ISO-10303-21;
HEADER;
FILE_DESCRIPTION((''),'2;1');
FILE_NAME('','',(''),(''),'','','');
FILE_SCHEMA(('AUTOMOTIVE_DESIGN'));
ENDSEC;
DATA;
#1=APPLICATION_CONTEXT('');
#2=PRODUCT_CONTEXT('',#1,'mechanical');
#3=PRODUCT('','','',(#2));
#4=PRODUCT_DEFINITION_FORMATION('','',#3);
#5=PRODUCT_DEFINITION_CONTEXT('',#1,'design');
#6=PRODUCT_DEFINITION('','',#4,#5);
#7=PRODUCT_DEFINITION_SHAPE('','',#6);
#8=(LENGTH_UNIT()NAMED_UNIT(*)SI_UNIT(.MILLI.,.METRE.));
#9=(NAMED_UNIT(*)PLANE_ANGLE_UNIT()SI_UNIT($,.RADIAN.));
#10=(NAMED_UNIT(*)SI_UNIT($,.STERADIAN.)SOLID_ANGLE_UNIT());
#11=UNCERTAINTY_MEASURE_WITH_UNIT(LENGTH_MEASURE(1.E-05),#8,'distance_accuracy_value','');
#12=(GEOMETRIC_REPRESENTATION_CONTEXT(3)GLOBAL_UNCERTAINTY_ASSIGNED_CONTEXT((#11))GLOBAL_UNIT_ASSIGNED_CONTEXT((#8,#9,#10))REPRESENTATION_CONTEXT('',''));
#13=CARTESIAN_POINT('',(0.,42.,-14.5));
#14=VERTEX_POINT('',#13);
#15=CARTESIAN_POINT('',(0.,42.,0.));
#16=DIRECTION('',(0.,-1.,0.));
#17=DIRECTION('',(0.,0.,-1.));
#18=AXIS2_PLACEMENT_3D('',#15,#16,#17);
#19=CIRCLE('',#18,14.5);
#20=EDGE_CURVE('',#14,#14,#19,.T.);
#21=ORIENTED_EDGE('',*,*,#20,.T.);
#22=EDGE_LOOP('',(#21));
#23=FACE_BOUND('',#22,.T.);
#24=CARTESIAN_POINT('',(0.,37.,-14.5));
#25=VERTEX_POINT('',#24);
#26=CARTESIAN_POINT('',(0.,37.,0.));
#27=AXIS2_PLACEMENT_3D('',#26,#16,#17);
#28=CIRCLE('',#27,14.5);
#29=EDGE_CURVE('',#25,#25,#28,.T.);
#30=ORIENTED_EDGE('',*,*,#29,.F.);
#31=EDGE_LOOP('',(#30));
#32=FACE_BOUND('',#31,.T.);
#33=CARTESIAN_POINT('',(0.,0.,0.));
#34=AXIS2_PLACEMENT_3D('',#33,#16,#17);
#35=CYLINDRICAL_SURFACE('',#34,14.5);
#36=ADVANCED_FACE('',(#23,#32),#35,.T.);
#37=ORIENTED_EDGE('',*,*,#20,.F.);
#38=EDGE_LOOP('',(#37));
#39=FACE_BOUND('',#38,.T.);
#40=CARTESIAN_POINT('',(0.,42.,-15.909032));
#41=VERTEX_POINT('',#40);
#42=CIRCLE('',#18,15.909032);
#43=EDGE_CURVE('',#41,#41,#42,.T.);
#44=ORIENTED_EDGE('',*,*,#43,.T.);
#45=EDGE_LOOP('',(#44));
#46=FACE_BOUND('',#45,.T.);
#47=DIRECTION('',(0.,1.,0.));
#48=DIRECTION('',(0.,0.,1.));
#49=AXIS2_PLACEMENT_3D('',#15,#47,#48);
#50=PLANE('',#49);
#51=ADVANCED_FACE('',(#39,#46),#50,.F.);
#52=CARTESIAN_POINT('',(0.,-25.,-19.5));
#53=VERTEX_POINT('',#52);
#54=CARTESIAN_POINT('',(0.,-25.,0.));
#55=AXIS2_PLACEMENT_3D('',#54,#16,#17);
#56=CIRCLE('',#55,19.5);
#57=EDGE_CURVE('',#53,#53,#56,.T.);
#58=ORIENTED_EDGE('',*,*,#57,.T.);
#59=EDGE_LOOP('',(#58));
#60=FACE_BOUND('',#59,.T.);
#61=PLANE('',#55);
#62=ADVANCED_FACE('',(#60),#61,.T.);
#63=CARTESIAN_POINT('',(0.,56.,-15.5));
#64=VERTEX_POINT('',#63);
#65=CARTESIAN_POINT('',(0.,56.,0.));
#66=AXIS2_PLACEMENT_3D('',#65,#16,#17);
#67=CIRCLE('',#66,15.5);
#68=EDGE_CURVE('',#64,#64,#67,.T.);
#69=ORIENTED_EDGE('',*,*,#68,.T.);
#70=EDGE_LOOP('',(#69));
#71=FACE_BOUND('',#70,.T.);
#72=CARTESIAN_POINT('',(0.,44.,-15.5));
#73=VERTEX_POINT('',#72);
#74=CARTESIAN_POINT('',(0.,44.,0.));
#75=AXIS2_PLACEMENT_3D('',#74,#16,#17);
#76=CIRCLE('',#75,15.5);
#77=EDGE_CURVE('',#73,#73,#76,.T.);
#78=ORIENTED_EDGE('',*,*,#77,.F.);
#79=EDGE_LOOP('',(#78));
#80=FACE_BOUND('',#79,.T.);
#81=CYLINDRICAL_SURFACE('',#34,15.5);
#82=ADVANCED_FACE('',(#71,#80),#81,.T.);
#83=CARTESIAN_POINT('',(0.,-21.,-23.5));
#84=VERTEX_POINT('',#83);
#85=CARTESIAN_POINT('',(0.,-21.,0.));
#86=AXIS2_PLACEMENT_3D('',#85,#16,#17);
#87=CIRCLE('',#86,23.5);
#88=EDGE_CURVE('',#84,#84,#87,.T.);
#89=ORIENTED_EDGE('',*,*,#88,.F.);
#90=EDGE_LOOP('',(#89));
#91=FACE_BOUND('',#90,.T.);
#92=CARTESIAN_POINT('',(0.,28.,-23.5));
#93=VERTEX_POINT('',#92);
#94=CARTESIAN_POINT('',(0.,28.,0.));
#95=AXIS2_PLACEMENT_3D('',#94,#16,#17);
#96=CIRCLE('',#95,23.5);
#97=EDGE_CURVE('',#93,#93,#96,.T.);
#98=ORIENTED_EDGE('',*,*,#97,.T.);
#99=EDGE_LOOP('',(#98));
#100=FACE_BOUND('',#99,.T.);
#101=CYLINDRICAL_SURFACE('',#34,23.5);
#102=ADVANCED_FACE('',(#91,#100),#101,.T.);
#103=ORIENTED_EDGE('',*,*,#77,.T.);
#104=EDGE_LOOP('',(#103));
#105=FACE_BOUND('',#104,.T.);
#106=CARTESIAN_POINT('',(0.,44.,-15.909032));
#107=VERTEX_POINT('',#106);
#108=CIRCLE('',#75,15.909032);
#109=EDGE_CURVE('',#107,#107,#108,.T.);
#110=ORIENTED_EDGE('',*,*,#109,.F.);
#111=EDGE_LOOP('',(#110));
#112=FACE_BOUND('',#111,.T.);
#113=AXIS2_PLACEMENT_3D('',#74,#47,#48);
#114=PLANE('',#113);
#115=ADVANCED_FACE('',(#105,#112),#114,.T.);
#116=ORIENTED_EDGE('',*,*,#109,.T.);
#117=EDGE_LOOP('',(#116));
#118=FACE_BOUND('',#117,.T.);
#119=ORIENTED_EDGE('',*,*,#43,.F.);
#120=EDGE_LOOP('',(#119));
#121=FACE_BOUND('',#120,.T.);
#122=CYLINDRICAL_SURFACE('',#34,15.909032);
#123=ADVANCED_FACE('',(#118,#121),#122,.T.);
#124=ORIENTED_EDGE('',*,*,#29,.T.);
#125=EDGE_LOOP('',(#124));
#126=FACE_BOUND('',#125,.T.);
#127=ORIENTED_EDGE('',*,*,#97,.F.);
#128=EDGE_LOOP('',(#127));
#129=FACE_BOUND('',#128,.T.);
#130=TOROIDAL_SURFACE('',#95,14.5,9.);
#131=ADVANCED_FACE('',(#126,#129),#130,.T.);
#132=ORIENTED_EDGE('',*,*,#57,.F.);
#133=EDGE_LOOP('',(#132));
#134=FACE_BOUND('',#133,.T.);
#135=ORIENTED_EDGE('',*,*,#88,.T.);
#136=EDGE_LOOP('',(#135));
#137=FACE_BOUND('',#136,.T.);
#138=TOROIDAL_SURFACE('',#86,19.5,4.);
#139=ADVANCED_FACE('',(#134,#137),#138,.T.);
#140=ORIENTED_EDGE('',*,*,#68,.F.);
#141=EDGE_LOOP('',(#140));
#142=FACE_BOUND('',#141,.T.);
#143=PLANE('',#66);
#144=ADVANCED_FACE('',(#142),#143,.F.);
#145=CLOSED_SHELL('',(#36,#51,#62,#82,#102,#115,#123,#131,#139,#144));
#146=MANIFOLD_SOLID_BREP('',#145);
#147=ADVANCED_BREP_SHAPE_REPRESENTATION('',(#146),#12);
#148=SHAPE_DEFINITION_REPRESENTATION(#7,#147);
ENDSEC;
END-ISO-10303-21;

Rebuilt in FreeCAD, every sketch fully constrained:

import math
import FreeCAD as App
import Part
import Sketcher
from FreeCAD import Vector
Q = App.Units.Quantity

doc = App.newDocument("Part")
params = doc.addObject("Spreadsheet::Sheet", "Params")
for row, (alias, value) in enumerate([
    ("sketch1_radius", "4 mm"),
    ("sketch1_radius2", "9 mm"),
    ("sketch1_height", "81 mm"),
    ("sketch1_height2", "49 mm"),
    ("sketch1_height3", "5 mm"),
    ("revolution_angle", "360 deg"),
], start=1):
    params.set(f"A{row}", alias)
    params.set(f"B{row}", "=" + value)
    params.setAlias(f"B{row}", alias)

body = doc.addObject("PartDesign::Body", "Body")

sketch1 = body.newObject("Sketcher::SketchObject", "Sketch")
sketch1.AttachmentSupport = (doc.getObject("XY_Plane"), [""])
sketch1.MapMode = "FlatFace"
sketch1.addGeometry(Part.LineSegment(Vector(0, 56, 0), Vector(0, -25, 0)), False)
sketch1.addGeometry(Part.LineSegment(Vector(0, -25, 0), Vector(19.5, -25, 0)), False)
sketch1.addGeometry(Part.ArcOfCircle(Part.Circle(Vector(19.5, -21, 0), Vector(0, 0, 1), 4), math.radians(-90), math.radians(0)), False)
sketch1.addGeometry(Part.LineSegment(Vector(23.5, -21, 0), Vector(23.5, 28, 0)), False)
sketch1.addGeometry(Part.ArcOfCircle(Part.Circle(Vector(14.5, 28, 0), Vector(0, 0, 1), 9), math.radians(0), math.radians(90)), False)
sketch1.addGeometry(Part.LineSegment(Vector(14.5, 37, 0), Vector(14.5, 42, 0)), False)
sketch1.addGeometry(Part.LineSegment(Vector(14.5, 42, 0), Vector(15.91, 42, 0)), False)
sketch1.addGeometry(Part.LineSegment(Vector(15.91, 42, 0), Vector(15.91, 44, 0)), False)
sketch1.addGeometry(Part.LineSegment(Vector(15.91, 44, 0), Vector(15.5, 44, 0)), False)
sketch1.addGeometry(Part.LineSegment(Vector(15.5, 44, 0), Vector(15.5, 56, 0)), False)
sketch1.addGeometry(Part.LineSegment(Vector(15.5, 56, 0), Vector(0, 56, 0)), False)
sketch1.addConstraint(Sketcher.Constraint("Coincident", 0, 2, 1, 1))
sketch1.addConstraint(Sketcher.Constraint("Tangent", 1, 2, 2, 1))
sketch1.addConstraint(Sketcher.Constraint("Tangent", 2, 2, 3, 1))
sketch1.addConstraint(Sketcher.Constraint("Tangent", 3, 2, 4, 1))
sketch1.addConstraint(Sketcher.Constraint("Coincident", 4, 2, 5, 1))
sketch1.addConstraint(Sketcher.Constraint("Coincident", 5, 2, 6, 1))
sketch1.addConstraint(Sketcher.Constraint("Coincident", 6, 2, 7, 1))
sketch1.addConstraint(Sketcher.Constraint("Coincident", 7, 2, 8, 1))
sketch1.addConstraint(Sketcher.Constraint("Coincident", 8, 2, 9, 1))
sketch1.addConstraint(Sketcher.Constraint("Coincident", 9, 2, 10, 1))
sketch1.addConstraint(Sketcher.Constraint("Coincident", 10, 2, 0, 1))
sketch1.addConstraint(Sketcher.Constraint("Vertical", 0))
sketch1.addConstraint(Sketcher.Constraint("Horizontal", 1))
sketch1.addConstraint(Sketcher.Constraint("Vertical", 3))
sketch1.addConstraint(Sketcher.Constraint("Vertical", 5))
sketch1.addConstraint(Sketcher.Constraint("Horizontal", 6))
sketch1.addConstraint(Sketcher.Constraint("Vertical", 7))
sketch1.addConstraint(Sketcher.Constraint("Horizontal", 8))
sketch1.addConstraint(Sketcher.Constraint("Vertical", 9))
sketch1.addConstraint(Sketcher.Constraint("Horizontal", 10))
sketch1.addConstraint(Sketcher.Constraint("PointOnObject", 0, 2, -2))
sketch1.addConstraint(Sketcher.Constraint("Radius", 2, Q("4 mm")))
sketch1.addConstraint(Sketcher.Constraint("Radius", 4, Q("9 mm")))
sketch1.addConstraint(Sketcher.Constraint("DistanceY", 0, 2, 0, 1, Q("81 mm")))
sketch1.addConstraint(Sketcher.Constraint("DistanceY", 3, 1, 3, 2, Q("49 mm")))
sketch1.addConstraint(Sketcher.Constraint("DistanceY", 5, 1, 5, 2, Q("5 mm")))
sketch1.addConstraint(Sketcher.Constraint("DistanceY", 7, 1, 7, 2, Q("2 mm")))
sketch1.addConstraint(Sketcher.Constraint("DistanceX", 1, 1, 1, 2, Q("19.5 mm")))
sketch1.addConstraint(Sketcher.Constraint("DistanceX", 10, 2, 10, 1, Q("15.5 mm")))
sketch1.addConstraint(Sketcher.Constraint("DistanceY", 2, 3, -1, 1, Q("21 mm")))
sketch1.addConstraint(Sketcher.Constraint("DistanceX", 4, 2, 3, 2, Q("9 mm")))
sketch1.addConstraint(Sketcher.Constraint("DistanceX", 6, 1, 6, 2, Q("1.409032 mm")))
sketch1.setExpression("Constraints[21]", "Params.sketch1_radius")
sketch1.setExpression("Constraints[22]", "Params.sketch1_radius2")
sketch1.setExpression("Constraints[23]", "Params.sketch1_height")
sketch1.setExpression("Constraints[24]", "Params.sketch1_height2")
sketch1.setExpression("Constraints[25]", "Params.sketch1_height3")
revolution = body.newObject("PartDesign::Revolution", "Revolution")
revolution.Profile = sketch1
revolution.ReferenceAxis = (sketch1, ["V_Axis"])
revolution.setExpression("Angle", "Params.revolution_angle")

doc.recompute()
